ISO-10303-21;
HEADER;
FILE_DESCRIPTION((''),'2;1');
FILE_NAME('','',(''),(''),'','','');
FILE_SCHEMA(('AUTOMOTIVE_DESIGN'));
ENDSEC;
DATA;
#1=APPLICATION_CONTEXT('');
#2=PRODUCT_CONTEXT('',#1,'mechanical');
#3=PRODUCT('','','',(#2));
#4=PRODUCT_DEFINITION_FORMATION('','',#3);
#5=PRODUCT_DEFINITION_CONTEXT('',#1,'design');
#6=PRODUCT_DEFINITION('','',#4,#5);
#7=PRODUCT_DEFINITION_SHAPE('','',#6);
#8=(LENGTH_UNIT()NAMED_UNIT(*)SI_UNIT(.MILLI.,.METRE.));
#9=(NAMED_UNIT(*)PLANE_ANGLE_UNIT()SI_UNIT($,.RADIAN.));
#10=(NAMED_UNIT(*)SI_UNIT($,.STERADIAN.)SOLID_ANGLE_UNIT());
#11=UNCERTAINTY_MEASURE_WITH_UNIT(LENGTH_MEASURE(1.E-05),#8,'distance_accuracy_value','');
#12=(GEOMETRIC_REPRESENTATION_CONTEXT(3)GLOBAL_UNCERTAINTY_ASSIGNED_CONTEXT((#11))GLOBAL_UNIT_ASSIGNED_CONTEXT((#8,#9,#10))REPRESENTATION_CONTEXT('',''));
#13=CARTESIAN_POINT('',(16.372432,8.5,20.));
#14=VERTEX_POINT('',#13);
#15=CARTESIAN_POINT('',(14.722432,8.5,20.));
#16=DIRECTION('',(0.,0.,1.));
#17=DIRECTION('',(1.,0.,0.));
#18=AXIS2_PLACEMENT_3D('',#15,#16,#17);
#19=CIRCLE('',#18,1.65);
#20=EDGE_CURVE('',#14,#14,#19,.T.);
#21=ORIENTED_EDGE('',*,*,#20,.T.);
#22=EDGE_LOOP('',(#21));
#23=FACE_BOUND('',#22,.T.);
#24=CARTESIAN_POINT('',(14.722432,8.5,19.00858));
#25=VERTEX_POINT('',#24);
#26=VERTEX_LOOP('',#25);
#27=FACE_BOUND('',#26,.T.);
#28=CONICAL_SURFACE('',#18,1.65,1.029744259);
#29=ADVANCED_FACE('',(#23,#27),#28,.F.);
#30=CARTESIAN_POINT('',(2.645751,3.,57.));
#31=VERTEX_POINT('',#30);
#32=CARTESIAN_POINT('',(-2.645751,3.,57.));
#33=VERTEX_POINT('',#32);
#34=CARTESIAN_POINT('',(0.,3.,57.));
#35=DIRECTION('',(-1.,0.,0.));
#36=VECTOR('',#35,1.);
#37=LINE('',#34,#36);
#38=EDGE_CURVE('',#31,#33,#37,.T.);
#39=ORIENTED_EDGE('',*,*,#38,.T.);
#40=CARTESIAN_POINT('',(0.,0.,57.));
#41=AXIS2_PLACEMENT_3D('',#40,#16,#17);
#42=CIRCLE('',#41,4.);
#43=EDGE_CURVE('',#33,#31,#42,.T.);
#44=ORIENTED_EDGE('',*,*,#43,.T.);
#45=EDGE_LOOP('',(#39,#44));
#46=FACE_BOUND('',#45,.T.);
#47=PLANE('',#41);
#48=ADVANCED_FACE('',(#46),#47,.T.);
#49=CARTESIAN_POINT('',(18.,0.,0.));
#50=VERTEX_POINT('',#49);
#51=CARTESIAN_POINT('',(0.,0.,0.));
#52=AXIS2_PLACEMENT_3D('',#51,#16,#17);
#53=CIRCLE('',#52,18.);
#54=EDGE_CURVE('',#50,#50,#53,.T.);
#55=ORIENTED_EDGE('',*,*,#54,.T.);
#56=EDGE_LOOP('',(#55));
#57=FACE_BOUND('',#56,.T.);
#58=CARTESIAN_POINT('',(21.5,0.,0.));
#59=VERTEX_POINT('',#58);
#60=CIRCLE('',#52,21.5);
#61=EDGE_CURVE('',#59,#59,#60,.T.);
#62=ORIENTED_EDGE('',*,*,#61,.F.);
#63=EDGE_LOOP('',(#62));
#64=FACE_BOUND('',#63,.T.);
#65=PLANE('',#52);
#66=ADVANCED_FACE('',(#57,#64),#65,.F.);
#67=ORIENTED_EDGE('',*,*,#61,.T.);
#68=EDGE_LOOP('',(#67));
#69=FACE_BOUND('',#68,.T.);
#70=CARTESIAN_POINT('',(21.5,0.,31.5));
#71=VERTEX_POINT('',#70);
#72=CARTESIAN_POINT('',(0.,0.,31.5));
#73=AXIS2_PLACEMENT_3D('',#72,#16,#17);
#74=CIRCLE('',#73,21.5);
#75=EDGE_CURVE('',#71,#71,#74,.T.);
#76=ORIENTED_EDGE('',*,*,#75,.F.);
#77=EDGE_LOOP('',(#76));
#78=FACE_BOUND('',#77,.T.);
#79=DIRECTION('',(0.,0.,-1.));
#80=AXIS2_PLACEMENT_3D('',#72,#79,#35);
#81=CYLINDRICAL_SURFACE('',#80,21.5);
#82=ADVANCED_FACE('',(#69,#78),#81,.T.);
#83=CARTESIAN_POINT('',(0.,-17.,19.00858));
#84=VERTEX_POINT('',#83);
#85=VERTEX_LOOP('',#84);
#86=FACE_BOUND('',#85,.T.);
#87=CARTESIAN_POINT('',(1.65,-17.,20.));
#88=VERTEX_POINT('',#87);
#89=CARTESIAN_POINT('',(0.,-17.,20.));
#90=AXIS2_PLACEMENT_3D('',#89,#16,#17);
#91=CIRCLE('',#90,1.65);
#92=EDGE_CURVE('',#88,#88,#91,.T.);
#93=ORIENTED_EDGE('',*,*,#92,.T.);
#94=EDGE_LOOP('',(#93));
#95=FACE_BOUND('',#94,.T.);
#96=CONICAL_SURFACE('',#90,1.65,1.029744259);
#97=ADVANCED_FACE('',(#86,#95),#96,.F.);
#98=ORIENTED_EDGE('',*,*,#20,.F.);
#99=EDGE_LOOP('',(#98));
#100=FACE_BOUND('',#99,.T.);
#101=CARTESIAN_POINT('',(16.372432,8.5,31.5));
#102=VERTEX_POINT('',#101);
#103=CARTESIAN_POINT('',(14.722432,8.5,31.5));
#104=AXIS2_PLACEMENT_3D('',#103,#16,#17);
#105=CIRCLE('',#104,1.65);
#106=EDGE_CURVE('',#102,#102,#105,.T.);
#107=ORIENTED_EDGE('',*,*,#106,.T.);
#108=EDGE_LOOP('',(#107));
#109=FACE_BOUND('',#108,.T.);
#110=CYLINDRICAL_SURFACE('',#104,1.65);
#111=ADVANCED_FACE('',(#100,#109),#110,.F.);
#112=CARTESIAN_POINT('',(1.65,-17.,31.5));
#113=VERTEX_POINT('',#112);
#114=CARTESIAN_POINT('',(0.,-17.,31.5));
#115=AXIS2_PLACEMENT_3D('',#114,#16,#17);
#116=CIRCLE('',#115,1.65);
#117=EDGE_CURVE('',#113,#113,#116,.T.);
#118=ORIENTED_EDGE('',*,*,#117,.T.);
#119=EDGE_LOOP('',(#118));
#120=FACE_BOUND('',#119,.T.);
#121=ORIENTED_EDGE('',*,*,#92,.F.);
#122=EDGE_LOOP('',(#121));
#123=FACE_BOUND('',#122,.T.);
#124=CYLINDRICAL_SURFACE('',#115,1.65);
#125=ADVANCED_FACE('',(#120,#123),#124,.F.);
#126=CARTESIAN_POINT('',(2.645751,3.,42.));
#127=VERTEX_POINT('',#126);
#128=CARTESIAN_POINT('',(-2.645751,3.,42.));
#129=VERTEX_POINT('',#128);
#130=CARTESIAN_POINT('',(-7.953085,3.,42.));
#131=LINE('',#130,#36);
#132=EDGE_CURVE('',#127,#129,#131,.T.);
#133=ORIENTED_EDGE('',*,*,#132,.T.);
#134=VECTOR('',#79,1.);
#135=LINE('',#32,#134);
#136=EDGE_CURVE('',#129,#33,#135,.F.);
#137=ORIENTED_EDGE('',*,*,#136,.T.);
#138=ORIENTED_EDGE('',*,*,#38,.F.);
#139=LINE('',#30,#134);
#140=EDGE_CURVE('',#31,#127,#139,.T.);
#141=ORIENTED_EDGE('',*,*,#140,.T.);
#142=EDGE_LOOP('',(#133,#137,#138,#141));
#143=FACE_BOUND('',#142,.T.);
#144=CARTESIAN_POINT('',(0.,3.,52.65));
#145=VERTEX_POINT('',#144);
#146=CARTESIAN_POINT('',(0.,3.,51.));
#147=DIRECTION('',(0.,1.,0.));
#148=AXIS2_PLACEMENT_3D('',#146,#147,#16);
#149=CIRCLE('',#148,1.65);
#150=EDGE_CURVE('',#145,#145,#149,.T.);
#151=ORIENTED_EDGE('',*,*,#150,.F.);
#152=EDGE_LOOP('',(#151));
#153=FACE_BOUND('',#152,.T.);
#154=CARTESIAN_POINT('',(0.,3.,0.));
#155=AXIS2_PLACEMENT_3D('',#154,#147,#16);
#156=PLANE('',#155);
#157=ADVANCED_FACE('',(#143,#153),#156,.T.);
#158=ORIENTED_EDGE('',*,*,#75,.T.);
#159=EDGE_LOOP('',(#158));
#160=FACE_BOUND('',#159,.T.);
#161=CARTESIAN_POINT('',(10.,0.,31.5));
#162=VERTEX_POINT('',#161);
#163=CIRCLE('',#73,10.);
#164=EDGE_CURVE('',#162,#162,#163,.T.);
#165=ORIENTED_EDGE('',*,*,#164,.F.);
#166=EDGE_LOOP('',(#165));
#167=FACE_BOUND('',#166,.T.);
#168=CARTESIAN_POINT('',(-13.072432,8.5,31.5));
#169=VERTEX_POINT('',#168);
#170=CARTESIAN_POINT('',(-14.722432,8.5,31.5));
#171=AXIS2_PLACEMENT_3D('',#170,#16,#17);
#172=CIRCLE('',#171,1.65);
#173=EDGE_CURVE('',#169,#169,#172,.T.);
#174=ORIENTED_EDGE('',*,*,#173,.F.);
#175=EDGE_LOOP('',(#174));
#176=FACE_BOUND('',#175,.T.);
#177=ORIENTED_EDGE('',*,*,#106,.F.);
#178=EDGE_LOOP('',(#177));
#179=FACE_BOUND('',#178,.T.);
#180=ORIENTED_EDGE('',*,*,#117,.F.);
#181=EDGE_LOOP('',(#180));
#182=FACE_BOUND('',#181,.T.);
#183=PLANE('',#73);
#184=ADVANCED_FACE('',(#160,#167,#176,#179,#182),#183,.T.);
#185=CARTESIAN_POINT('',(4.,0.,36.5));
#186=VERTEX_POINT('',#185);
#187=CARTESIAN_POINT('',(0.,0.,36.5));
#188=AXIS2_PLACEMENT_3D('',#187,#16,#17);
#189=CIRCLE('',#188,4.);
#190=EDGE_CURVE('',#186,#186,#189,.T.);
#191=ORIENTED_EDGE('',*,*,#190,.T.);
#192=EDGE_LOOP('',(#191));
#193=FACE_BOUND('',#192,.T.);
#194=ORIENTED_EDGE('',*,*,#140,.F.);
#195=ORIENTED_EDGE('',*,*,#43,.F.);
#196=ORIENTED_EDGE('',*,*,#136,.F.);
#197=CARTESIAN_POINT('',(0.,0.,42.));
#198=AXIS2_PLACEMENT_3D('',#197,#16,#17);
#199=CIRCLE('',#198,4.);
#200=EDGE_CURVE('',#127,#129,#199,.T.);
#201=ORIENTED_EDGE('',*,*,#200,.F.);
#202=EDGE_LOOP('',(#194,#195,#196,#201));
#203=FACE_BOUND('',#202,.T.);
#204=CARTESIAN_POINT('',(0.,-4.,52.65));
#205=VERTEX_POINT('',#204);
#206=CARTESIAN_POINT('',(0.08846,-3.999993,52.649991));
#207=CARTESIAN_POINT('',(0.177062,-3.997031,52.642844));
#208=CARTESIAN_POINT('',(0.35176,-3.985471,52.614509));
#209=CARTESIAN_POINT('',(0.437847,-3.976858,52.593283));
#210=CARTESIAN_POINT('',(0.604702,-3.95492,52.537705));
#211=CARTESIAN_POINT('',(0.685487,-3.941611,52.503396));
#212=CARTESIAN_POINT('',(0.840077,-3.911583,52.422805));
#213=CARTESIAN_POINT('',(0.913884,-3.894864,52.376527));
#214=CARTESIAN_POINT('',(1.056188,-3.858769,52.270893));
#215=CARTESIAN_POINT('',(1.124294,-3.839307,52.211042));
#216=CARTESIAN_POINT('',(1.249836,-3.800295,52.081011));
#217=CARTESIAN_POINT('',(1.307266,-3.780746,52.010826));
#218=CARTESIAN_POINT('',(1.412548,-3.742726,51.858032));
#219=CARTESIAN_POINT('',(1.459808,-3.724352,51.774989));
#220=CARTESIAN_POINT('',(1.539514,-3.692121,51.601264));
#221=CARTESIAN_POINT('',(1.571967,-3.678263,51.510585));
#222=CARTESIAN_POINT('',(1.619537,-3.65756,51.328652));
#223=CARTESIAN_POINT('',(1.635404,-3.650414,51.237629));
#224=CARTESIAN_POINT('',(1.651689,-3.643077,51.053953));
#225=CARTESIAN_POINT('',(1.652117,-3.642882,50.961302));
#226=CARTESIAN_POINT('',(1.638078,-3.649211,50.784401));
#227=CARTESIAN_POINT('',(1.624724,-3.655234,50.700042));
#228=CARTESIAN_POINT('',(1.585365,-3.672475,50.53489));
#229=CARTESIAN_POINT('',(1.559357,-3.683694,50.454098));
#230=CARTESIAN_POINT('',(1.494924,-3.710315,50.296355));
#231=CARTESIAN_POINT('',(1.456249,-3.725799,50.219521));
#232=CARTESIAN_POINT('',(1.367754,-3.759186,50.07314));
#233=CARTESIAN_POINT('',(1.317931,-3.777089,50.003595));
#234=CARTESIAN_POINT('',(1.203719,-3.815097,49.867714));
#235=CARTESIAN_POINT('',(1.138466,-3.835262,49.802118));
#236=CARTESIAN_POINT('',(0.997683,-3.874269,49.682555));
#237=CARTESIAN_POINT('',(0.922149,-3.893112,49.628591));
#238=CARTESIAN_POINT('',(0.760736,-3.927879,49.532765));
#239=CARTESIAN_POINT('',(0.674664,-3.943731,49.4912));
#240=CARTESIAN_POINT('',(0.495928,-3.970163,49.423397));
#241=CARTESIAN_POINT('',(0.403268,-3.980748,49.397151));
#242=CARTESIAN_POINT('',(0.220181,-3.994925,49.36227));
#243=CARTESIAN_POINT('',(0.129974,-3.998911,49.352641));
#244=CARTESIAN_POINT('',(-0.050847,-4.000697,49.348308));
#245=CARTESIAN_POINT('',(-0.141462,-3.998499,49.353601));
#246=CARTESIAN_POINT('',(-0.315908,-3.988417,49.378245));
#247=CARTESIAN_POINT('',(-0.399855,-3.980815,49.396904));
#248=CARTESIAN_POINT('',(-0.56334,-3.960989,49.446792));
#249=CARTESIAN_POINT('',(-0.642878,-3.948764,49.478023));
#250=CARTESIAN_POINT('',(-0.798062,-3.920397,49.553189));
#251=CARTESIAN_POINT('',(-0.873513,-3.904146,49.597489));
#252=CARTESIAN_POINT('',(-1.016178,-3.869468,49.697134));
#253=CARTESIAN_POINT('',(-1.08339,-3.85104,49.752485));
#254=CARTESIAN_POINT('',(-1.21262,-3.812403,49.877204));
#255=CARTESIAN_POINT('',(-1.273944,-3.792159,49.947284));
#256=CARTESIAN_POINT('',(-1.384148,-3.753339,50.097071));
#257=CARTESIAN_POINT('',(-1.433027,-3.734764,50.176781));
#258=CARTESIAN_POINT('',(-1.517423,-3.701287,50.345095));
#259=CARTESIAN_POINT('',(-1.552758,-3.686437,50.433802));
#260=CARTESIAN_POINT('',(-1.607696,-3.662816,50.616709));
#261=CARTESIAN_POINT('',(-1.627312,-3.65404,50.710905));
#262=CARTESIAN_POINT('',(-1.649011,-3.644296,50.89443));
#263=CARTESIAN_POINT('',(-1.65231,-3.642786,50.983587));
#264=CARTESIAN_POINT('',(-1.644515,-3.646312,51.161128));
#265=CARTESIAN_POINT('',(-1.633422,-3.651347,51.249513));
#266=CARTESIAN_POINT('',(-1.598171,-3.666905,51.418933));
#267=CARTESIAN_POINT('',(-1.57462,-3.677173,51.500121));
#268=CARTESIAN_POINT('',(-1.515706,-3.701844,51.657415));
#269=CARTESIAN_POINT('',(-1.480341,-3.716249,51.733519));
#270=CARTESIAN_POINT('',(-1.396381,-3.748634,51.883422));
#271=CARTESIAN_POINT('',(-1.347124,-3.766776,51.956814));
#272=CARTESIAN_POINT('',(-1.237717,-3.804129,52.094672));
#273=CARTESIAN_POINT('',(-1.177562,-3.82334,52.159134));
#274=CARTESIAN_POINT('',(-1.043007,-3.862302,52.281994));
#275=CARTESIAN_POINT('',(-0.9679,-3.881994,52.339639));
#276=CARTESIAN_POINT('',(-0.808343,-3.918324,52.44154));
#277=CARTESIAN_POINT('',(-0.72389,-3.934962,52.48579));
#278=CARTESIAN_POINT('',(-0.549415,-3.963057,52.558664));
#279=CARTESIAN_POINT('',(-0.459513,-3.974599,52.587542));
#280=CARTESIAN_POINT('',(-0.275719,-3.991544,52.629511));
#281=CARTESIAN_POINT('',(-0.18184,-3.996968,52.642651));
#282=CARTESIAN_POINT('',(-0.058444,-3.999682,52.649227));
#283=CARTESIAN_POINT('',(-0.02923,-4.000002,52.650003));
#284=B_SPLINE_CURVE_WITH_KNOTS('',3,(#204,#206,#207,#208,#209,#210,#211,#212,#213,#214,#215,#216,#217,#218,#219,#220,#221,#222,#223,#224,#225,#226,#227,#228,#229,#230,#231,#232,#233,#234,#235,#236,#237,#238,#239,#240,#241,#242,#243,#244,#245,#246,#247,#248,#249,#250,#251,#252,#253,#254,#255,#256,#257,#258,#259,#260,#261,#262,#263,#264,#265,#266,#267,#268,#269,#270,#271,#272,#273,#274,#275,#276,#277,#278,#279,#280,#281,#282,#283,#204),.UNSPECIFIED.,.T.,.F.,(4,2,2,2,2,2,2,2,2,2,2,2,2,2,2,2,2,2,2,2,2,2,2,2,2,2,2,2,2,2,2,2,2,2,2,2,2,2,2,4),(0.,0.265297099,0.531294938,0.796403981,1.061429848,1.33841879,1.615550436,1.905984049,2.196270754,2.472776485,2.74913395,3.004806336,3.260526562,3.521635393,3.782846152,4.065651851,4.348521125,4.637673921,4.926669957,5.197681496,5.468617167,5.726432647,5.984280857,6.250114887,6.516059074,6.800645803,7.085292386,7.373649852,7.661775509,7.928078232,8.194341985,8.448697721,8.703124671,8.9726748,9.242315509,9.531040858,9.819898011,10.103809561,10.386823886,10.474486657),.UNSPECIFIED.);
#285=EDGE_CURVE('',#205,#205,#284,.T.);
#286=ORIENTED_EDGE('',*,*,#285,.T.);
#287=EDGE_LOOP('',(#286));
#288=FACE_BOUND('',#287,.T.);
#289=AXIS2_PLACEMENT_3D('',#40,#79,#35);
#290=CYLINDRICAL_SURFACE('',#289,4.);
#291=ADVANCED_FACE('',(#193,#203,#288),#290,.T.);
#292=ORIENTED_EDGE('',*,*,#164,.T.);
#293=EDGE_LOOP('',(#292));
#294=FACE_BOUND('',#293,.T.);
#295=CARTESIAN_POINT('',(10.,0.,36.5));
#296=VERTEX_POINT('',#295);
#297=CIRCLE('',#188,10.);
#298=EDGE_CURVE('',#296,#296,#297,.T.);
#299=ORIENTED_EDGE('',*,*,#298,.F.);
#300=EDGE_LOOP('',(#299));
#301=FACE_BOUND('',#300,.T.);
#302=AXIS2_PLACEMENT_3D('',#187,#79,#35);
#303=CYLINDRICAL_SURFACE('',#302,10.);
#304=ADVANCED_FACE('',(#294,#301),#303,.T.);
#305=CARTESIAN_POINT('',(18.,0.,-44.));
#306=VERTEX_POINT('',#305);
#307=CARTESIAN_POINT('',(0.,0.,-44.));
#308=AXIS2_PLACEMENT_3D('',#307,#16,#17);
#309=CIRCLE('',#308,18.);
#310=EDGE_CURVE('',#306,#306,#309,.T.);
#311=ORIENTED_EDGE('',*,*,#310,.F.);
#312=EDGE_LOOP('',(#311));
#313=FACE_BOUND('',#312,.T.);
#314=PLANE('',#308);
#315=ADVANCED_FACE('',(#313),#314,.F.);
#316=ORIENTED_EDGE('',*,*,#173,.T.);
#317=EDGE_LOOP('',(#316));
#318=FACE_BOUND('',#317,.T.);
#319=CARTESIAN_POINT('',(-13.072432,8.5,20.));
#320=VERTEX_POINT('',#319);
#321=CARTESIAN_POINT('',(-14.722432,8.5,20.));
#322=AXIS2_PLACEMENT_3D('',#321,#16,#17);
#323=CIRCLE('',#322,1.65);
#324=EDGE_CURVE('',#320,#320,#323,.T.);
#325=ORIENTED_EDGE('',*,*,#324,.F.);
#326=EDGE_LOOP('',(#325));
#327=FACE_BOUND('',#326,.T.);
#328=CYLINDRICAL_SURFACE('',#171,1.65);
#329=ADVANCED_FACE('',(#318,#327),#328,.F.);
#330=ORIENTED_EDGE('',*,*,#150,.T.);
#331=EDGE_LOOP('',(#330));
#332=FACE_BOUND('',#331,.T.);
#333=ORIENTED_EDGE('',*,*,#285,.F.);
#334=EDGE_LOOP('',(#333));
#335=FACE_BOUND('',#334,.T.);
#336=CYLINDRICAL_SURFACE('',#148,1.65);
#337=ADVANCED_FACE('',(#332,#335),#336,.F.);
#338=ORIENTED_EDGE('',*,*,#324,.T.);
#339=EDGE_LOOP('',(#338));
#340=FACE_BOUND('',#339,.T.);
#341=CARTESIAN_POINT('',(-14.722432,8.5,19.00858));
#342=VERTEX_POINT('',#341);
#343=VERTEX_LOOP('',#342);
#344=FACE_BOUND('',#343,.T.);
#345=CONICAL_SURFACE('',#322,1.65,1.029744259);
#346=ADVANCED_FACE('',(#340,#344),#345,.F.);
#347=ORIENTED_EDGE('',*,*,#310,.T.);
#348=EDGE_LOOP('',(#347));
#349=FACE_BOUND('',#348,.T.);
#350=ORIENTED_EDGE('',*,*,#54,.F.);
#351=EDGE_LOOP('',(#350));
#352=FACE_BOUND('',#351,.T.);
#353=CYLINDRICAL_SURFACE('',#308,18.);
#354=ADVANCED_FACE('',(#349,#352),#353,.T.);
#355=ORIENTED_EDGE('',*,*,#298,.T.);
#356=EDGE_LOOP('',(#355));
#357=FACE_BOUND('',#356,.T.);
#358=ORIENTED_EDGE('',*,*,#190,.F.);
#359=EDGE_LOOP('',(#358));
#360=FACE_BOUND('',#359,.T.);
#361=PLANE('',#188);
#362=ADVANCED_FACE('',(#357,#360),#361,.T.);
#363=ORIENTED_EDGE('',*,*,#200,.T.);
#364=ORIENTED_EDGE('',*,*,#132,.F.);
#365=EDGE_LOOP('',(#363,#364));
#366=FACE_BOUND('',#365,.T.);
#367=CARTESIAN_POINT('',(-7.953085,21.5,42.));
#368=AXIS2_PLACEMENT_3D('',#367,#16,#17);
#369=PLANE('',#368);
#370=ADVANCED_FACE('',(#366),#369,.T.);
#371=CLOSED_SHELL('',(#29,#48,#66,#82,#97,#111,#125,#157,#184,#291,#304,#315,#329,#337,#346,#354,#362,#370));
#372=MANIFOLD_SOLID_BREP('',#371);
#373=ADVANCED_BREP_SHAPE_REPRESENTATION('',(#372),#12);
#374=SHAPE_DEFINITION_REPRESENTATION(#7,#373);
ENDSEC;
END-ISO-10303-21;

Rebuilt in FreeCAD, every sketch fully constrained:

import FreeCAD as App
import Part
import Sketcher
from FreeCAD import Vector


def add_polygon(sketch, points):
    """Adds a closed chain of lines whose ends are joined by coincident constraints."""
    first, n = sketch.GeometryCount, len(points)
    for a, b in zip(points, points[1:] + points[:1]):
        sketch.addGeometry(Part.LineSegment(App.Vector(*a, 0), App.Vector(*b, 0)), False)
    for i in range(n):
        sketch.addConstraint(Sketcher.Constraint("Coincident", first + i, 2, first + (i + 1) % n, 1))

doc = App.newDocument("Part")
params = doc.addObject("Spreadsheet::Sheet", "Params")
for row, (alias, value) in enumerate([
    ("sketch1_diameter", "43 mm"),
    ("pad1_length", "31.5 mm"),
    ("sketch2_diameter", "36 mm"),
    ("pad2_length", "44 mm"),
    ("sketch3_diameter", "20 mm"),
    ("sketch3_diameter2", "8 mm"),
    ("pad3_length", "5 mm"),
    ("sketch4_diameter", "8 mm"),
    ("pad4_length", "25.5 mm"),
    ("sketch5_height", "15 mm"),
    ("sketch6_diameter", "3.3 mm"),
    ("hole_diameter", "3.3 mm"),
    ("hole_depth", "11.5 mm"),
    ("sketch7_diameter", "3.3 mm"),
    ("hole2_diameter", "3.3 mm"),
], start=1):
    params.set(f"A{row}", alias)
    params.set(f"B{row}", "=" + value)
    params.setAlias(f"B{row}", alias)

body = doc.addObject("PartDesign::Body", "Body")

sketch1 = body.newObject("Sketcher::SketchObject", "Sketch")
sketch1.AttachmentSupport = (doc.getObject("XY_Plane"), [""])
sketch1.MapMode = "FlatFace"
sketch1.addGeometry(Part.Circle(Vector(0, 0, 0), Vector(0, 0, 1), 22), False)
sketch1.addConstraint(Sketcher.Constraint("Coincident", 0, 3, -1, 1))
sketch1.addConstraint(Sketcher.Constraint("Diameter", 0, 43.0))
sketch1.setExpression("Constraints[1]", "Params.sketch1_diameter")
pad1 = body.newObject("PartDesign::Pad", "Pad")
pad1.Profile = sketch1
pad1.setExpression("Length", "Params.pad1_length")

sketch2 = body.newObject("Sketcher::SketchObject", "Sketch001")
sketch2.AttachmentSupport = (doc.getObject("XY_Plane"), [""])
sketch2.MapMode = "FlatFace"
sketch2.addGeometry(Part.Circle(Vector(0, 0, 0), Vector(0, 0, 1), 18), False)
sketch2.addConstraint(Sketcher.Constraint("Coincident", 0, 3, -1, 1))
sketch2.addConstraint(Sketcher.Constraint("Diameter", 0, 36.0))
sketch2.setExpression("Constraints[1]", "Params.sketch2_diameter")
pad2 = body.newObject("PartDesign::Pad", "Pad001")
pad2.Profile = sketch2
pad2.setExpression("Length", "Params.pad2_length")
pad2.Reversed = True

sketch3 = body.newObject("Sketcher::SketchObject", "Sketch002")
sketch3.AttachmentSupport = (doc.getObject("XY_Plane"), [""])
sketch3.MapMode = "FlatFace"
sketch3.AttachmentOffset = App.Placement(Vector(0, 0, 31.5), App.Rotation())
sketch3.addGeometry(Part.Circle(Vector(0, 0, 0), Vector(0, 0, 1), 10), False)
sketch3.addGeometry(Part.Circle(Vector(0, 0, 0), Vector(0, 0, 1), 4), False)
sketch3.addConstraint(Sketcher.Constraint("Coincident", 0, 3, -1, 1))
sketch3.addConstraint(Sketcher.Constraint("Coincident", 1, 3, -1, 1))
sketch3.addConstraint(Sketcher.Constraint("Diameter", 0, 20.0))
sketch3.addConstraint(Sketcher.Constraint("Diameter", 1, 8.0))
sketch3.setExpression("Constraints[2]", "Params.sketch3_diameter")
sketch3.setExpression("Constraints[3]", "Params.sketch3_diameter2")
pad3 = body.newObject("PartDesign::Pad", "Pad002")
pad3.Profile = sketch3
pad3.setExpression("Length", "Params.pad3_length")

sketch4 = body.newObject("Sketcher::SketchObject", "Sketch003")
sketch4.AttachmentSupport = (doc.getObject("XY_Plane"), [""])
sketch4.MapMode = "FlatFace"
sketch4.AttachmentOffset = App.Placement(Vector(0, 0, 31.5), App.Rotation())
sketch4.addGeometry(Part.Circle(Vector(0, 0, 0), Vector(0, 0, 1), 4), False)
sketch4.addConstraint(Sketcher.Constraint("Coincident", 0, 3, -1, 1))
sketch4.addConstraint(Sketcher.Constraint("Diameter", 0, 8.0))
sketch4.setExpression("Constraints[1]", "Params.sketch4_diameter")
pad4 = body.newObject("PartDesign::Pad", "Pad003")
pad4.Profile = sketch4
pad4.setExpression("Length", "Params.pad4_length")

sketch5 = body.newObject("Sketcher::SketchObject", "Sketch004")
sketch5.AttachmentSupport = (doc.getObject("XZ_Plane"), [""])
sketch5.MapMode = "FlatFace"
sketch5.AttachmentOffset = App.Placement(Vector(0, 0, -3), App.Rotation())
add_polygon(sketch5, [(-8, 42), (-8, 57), (8, 57), (8, 42)])
sketch5.addConstraint(Sketcher.Constraint("Vertical", 0))
sketch5.addConstraint(Sketcher.Constraint("Horizontal", 1))
sketch5.addConstraint(Sketcher.Constraint("Vertical", 2))
sketch5.addConstraint(Sketcher.Constraint("Horizontal", 3))
sketch5.addConstraint(Sketcher.Constraint("DistanceY", 0, 1, 0, 2, 15.0))
sketch5.addConstraint(Sketcher.Constraint("DistanceY", -1, 1, 0, 2, 57.0))
sketch5.addConstraint(Sketcher.Constraint("DistanceX", 1, 1, 1, 2, 15.90617))
sketch5.addConstraint(Sketcher.Constraint("DistanceX", 0, 2, -1, 1, 7.953085))
sketch5.setExpression("Constraints[8]", "Params.sketch5_height")
pocket1 = body.newObject("PartDesign::Pocket", "Pocket")
pocket1.Profile = sketch5
pocket1.Type = "ThroughAll"

sketch6 = body.newObject("Sketcher::SketchObject", "Sketch005")
sketch6.AttachmentSupport = (doc.getObject("XY_Plane"), [""])
sketch6.MapMode = "FlatFace"
sketch6.AttachmentOffset = App.Placement(Vector(0, 0, 31.5), App.Rotation())
sketch6.addGeometry(Part.Circle(Vector(0, -17, 0), Vector(0, 0, 1), 1.6), False)
sketch6.addGeometry(Part.Circle(Vector(-14.7, 8.5, 0), Vector(0, 0, 1), 1.6), False)
sketch6.addGeometry(Part.Circle(Vector(14.7, 8.5, 0), Vector(0, 0, 1), 1.6), False)
sketch6.addConstraint(Sketcher.Constraint("Equal", 0, 1))
sketch6.addConstraint(Sketcher.Constraint("Equal", 1, 2))
sketch6.addConstraint(Sketcher.Constraint("Symmetric", 1, 3, 2, 3, -2))
sketch6.addConstraint(Sketcher.Constraint("PointOnObject", 0, 3, -2))
sketch6.addConstraint(Sketcher.Constraint("Diameter", 0, 3.3))
sketch6.addConstraint(Sketcher.Constraint("DistanceY", 0, 3, -1, 1, 17.0))
sketch6.addConstraint(Sketcher.Constraint("DistanceY", -1, 1, 1, 3, 8.5))
sketch6.addConstraint(Sketcher.Constraint("DistanceX", 1, 3, -1, 1, 14.722432))
sketch6.setExpression("Constraints[4]", "Params.sketch6_diameter")
doc.recompute()
hole = body.newObject("PartDesign::Hole", "Hole")
hole.Profile = sketch6
hole.ThreadType = "None"
hole.setExpression("Diameter", "Params.hole_diameter")
hole.DepthType = "Dimension"
hole.setExpression("Depth", "Params.hole_depth")
hole.DrillPoint = "Angled"
hole.DrillPointAngle = 118

sketch7 = body.newObject("Sketcher::SketchObject", "Sketch006")
sketch7.AttachmentSupport = (doc.getObject("XZ_Plane"), [""])
sketch7.MapMode = "FlatFace"
sketch7.AttachmentOffset = App.Placement(Vector(0, 0, -3), App.Rotation())
sketch7.addGeometry(Part.Circle(Vector(0, 51, 0), Vector(0, 0, 1), 1.6), False)
sketch7.addConstraint(Sketcher.Constraint("PointOnObject", 0, 3, -2))
sketch7.addConstraint(Sketcher.Constraint("Diameter", 0, 3.3))
sketch7.addConstraint(Sketcher.Constraint("DistanceY", -1, 1, 0, 3, 51.0))
sketch7.setExpression("Constraints[1]", "Params.sketch7_diameter")
doc.recompute()
hole2 = body.newObject("PartDesign::Hole", "Hole001")
hole2.Profile = sketch7
hole2.ThreadType = "None"
hole2.setExpression("Diameter", "Params.hole2_diameter")
hole2.DepthType = "ThroughAll"
hole2.Reversed = True

doc.recompute()
